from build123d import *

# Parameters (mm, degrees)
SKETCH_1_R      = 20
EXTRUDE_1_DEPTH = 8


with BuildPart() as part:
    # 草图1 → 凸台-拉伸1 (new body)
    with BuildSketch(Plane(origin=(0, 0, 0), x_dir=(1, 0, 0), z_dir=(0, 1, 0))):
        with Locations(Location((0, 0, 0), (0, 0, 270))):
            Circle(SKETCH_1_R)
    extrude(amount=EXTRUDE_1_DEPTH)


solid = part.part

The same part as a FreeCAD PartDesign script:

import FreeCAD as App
import Part
import Sketcher
Q = App.Units.Quantity

doc = App.newDocument("Part")
body = doc.addObject("PartDesign::Body", "Body")

sketch1 = body.newObject("Sketcher::SketchObject", "Sketch")
sketch1.AttachmentSupport = (doc.getObject("XZ_Plane"), [""])
sketch1.MapMode = "FlatFace"
sketch1.addGeometry(Part.Circle(App.Vector(0, 0, 0), App.Vector(0, 0, 1), 20), False)
sketch1.addConstraint(Sketcher.Constraint("Coincident", 0, 3, -1, 1))
sketch1.addConstraint(Sketcher.Constraint("Diameter", 0, Q("40 mm")))
pad1 = body.newObject("PartDesign::Pad", "Pad")
pad1.Profile = sketch1
pad1.Length = 8
pad1.Reversed = True

doc.recompute()
